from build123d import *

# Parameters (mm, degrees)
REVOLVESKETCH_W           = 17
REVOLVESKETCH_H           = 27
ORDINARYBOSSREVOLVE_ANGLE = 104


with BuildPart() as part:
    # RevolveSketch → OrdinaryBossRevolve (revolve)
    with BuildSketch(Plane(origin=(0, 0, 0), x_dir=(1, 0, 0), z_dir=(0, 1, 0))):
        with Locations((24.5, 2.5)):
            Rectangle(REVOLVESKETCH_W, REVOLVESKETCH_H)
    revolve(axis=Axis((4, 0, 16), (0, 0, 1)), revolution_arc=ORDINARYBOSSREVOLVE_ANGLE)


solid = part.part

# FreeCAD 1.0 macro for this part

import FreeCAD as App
import Part
import Sketcher
from FreeCAD import Vector
Q = App.Units.Quantity


def add_polygon(sketch, points):
    """Adds a closed chain of lines whose ends are joined by coincident constraints."""
    first, n = sketch.GeometryCount, len(points)
    for a, b in zip(points, points[1:] + points[:1]):
        sketch.addGeometry(Part.LineSegment(App.Vector(*a, 0), App.Vector(*b, 0)), False)
    for i in range(n):
        sketch.addConstraint(Sketcher.Constraint("Coincident", first + i, 2, first + (i + 1) % n, 1))

doc = App.newDocument("Part")
body = doc.addObject("PartDesign::Body", "Body")

# Sketch on XZ plane
sketch1 = body.newObject("Sketcher::SketchObject", "Sketch")
sketch1.AttachmentSupport = (doc.getObject("XZ_Plane"), [""])
sketch1.MapMode = "FlatFace"
add_polygon(sketch1, [(16, -16), (16, 11), (33, 11), (33, -16)])  # lines 0-3
sketch1.addGeometry(Part.LineSegment(Vector(4, -16, 0), Vector(4, 11, 0)), True)  # axis
sketch1.addConstraint(Sketcher.Constraint("Vertical", 0))
sketch1.addConstraint(Sketcher.Constraint("Horizontal", 1))
sketch1.addConstraint(Sketcher.Constraint("Vertical", 2))
sketch1.addConstraint(Sketcher.Constraint("Horizontal", 3))
sketch1.addConstraint(Sketcher.Constraint("Vertical", 4))
sketch1.addConstraint(Sketcher.Constraint("Horizontal", 3, 2, 4, 1))
sketch1.addConstraint(Sketcher.Constraint("Horizontal", 1, 2, 4, 2))
sketch1.addConstraint(Sketcher.Constraint("DistanceX", 1, 1, 1, 2, Q("17 mm")))
sketch1.addConstraint(Sketcher.Constraint("DistanceY", 0, 1, 0, 2, Q("27 mm")))
sketch1.addConstraint(Sketcher.Constraint("DistanceX", -1, 1, 0, 2, Q("16 mm")))
sketch1.addConstraint(Sketcher.Constraint("DistanceY", -1, 1, 0, 2, Q("11 mm")))
sketch1.addConstraint(Sketcher.Constraint("DistanceX", -1, 1, 4, 1, Q("4 mm")))
revolution = body.newObject("PartDesign::Revolution", "Revolution")
revolution.Profile = sketch1
revolution.ReferenceAxis = (sketch1, ["Axis0"])
revolution.Angle = 104

doc.recompute()
